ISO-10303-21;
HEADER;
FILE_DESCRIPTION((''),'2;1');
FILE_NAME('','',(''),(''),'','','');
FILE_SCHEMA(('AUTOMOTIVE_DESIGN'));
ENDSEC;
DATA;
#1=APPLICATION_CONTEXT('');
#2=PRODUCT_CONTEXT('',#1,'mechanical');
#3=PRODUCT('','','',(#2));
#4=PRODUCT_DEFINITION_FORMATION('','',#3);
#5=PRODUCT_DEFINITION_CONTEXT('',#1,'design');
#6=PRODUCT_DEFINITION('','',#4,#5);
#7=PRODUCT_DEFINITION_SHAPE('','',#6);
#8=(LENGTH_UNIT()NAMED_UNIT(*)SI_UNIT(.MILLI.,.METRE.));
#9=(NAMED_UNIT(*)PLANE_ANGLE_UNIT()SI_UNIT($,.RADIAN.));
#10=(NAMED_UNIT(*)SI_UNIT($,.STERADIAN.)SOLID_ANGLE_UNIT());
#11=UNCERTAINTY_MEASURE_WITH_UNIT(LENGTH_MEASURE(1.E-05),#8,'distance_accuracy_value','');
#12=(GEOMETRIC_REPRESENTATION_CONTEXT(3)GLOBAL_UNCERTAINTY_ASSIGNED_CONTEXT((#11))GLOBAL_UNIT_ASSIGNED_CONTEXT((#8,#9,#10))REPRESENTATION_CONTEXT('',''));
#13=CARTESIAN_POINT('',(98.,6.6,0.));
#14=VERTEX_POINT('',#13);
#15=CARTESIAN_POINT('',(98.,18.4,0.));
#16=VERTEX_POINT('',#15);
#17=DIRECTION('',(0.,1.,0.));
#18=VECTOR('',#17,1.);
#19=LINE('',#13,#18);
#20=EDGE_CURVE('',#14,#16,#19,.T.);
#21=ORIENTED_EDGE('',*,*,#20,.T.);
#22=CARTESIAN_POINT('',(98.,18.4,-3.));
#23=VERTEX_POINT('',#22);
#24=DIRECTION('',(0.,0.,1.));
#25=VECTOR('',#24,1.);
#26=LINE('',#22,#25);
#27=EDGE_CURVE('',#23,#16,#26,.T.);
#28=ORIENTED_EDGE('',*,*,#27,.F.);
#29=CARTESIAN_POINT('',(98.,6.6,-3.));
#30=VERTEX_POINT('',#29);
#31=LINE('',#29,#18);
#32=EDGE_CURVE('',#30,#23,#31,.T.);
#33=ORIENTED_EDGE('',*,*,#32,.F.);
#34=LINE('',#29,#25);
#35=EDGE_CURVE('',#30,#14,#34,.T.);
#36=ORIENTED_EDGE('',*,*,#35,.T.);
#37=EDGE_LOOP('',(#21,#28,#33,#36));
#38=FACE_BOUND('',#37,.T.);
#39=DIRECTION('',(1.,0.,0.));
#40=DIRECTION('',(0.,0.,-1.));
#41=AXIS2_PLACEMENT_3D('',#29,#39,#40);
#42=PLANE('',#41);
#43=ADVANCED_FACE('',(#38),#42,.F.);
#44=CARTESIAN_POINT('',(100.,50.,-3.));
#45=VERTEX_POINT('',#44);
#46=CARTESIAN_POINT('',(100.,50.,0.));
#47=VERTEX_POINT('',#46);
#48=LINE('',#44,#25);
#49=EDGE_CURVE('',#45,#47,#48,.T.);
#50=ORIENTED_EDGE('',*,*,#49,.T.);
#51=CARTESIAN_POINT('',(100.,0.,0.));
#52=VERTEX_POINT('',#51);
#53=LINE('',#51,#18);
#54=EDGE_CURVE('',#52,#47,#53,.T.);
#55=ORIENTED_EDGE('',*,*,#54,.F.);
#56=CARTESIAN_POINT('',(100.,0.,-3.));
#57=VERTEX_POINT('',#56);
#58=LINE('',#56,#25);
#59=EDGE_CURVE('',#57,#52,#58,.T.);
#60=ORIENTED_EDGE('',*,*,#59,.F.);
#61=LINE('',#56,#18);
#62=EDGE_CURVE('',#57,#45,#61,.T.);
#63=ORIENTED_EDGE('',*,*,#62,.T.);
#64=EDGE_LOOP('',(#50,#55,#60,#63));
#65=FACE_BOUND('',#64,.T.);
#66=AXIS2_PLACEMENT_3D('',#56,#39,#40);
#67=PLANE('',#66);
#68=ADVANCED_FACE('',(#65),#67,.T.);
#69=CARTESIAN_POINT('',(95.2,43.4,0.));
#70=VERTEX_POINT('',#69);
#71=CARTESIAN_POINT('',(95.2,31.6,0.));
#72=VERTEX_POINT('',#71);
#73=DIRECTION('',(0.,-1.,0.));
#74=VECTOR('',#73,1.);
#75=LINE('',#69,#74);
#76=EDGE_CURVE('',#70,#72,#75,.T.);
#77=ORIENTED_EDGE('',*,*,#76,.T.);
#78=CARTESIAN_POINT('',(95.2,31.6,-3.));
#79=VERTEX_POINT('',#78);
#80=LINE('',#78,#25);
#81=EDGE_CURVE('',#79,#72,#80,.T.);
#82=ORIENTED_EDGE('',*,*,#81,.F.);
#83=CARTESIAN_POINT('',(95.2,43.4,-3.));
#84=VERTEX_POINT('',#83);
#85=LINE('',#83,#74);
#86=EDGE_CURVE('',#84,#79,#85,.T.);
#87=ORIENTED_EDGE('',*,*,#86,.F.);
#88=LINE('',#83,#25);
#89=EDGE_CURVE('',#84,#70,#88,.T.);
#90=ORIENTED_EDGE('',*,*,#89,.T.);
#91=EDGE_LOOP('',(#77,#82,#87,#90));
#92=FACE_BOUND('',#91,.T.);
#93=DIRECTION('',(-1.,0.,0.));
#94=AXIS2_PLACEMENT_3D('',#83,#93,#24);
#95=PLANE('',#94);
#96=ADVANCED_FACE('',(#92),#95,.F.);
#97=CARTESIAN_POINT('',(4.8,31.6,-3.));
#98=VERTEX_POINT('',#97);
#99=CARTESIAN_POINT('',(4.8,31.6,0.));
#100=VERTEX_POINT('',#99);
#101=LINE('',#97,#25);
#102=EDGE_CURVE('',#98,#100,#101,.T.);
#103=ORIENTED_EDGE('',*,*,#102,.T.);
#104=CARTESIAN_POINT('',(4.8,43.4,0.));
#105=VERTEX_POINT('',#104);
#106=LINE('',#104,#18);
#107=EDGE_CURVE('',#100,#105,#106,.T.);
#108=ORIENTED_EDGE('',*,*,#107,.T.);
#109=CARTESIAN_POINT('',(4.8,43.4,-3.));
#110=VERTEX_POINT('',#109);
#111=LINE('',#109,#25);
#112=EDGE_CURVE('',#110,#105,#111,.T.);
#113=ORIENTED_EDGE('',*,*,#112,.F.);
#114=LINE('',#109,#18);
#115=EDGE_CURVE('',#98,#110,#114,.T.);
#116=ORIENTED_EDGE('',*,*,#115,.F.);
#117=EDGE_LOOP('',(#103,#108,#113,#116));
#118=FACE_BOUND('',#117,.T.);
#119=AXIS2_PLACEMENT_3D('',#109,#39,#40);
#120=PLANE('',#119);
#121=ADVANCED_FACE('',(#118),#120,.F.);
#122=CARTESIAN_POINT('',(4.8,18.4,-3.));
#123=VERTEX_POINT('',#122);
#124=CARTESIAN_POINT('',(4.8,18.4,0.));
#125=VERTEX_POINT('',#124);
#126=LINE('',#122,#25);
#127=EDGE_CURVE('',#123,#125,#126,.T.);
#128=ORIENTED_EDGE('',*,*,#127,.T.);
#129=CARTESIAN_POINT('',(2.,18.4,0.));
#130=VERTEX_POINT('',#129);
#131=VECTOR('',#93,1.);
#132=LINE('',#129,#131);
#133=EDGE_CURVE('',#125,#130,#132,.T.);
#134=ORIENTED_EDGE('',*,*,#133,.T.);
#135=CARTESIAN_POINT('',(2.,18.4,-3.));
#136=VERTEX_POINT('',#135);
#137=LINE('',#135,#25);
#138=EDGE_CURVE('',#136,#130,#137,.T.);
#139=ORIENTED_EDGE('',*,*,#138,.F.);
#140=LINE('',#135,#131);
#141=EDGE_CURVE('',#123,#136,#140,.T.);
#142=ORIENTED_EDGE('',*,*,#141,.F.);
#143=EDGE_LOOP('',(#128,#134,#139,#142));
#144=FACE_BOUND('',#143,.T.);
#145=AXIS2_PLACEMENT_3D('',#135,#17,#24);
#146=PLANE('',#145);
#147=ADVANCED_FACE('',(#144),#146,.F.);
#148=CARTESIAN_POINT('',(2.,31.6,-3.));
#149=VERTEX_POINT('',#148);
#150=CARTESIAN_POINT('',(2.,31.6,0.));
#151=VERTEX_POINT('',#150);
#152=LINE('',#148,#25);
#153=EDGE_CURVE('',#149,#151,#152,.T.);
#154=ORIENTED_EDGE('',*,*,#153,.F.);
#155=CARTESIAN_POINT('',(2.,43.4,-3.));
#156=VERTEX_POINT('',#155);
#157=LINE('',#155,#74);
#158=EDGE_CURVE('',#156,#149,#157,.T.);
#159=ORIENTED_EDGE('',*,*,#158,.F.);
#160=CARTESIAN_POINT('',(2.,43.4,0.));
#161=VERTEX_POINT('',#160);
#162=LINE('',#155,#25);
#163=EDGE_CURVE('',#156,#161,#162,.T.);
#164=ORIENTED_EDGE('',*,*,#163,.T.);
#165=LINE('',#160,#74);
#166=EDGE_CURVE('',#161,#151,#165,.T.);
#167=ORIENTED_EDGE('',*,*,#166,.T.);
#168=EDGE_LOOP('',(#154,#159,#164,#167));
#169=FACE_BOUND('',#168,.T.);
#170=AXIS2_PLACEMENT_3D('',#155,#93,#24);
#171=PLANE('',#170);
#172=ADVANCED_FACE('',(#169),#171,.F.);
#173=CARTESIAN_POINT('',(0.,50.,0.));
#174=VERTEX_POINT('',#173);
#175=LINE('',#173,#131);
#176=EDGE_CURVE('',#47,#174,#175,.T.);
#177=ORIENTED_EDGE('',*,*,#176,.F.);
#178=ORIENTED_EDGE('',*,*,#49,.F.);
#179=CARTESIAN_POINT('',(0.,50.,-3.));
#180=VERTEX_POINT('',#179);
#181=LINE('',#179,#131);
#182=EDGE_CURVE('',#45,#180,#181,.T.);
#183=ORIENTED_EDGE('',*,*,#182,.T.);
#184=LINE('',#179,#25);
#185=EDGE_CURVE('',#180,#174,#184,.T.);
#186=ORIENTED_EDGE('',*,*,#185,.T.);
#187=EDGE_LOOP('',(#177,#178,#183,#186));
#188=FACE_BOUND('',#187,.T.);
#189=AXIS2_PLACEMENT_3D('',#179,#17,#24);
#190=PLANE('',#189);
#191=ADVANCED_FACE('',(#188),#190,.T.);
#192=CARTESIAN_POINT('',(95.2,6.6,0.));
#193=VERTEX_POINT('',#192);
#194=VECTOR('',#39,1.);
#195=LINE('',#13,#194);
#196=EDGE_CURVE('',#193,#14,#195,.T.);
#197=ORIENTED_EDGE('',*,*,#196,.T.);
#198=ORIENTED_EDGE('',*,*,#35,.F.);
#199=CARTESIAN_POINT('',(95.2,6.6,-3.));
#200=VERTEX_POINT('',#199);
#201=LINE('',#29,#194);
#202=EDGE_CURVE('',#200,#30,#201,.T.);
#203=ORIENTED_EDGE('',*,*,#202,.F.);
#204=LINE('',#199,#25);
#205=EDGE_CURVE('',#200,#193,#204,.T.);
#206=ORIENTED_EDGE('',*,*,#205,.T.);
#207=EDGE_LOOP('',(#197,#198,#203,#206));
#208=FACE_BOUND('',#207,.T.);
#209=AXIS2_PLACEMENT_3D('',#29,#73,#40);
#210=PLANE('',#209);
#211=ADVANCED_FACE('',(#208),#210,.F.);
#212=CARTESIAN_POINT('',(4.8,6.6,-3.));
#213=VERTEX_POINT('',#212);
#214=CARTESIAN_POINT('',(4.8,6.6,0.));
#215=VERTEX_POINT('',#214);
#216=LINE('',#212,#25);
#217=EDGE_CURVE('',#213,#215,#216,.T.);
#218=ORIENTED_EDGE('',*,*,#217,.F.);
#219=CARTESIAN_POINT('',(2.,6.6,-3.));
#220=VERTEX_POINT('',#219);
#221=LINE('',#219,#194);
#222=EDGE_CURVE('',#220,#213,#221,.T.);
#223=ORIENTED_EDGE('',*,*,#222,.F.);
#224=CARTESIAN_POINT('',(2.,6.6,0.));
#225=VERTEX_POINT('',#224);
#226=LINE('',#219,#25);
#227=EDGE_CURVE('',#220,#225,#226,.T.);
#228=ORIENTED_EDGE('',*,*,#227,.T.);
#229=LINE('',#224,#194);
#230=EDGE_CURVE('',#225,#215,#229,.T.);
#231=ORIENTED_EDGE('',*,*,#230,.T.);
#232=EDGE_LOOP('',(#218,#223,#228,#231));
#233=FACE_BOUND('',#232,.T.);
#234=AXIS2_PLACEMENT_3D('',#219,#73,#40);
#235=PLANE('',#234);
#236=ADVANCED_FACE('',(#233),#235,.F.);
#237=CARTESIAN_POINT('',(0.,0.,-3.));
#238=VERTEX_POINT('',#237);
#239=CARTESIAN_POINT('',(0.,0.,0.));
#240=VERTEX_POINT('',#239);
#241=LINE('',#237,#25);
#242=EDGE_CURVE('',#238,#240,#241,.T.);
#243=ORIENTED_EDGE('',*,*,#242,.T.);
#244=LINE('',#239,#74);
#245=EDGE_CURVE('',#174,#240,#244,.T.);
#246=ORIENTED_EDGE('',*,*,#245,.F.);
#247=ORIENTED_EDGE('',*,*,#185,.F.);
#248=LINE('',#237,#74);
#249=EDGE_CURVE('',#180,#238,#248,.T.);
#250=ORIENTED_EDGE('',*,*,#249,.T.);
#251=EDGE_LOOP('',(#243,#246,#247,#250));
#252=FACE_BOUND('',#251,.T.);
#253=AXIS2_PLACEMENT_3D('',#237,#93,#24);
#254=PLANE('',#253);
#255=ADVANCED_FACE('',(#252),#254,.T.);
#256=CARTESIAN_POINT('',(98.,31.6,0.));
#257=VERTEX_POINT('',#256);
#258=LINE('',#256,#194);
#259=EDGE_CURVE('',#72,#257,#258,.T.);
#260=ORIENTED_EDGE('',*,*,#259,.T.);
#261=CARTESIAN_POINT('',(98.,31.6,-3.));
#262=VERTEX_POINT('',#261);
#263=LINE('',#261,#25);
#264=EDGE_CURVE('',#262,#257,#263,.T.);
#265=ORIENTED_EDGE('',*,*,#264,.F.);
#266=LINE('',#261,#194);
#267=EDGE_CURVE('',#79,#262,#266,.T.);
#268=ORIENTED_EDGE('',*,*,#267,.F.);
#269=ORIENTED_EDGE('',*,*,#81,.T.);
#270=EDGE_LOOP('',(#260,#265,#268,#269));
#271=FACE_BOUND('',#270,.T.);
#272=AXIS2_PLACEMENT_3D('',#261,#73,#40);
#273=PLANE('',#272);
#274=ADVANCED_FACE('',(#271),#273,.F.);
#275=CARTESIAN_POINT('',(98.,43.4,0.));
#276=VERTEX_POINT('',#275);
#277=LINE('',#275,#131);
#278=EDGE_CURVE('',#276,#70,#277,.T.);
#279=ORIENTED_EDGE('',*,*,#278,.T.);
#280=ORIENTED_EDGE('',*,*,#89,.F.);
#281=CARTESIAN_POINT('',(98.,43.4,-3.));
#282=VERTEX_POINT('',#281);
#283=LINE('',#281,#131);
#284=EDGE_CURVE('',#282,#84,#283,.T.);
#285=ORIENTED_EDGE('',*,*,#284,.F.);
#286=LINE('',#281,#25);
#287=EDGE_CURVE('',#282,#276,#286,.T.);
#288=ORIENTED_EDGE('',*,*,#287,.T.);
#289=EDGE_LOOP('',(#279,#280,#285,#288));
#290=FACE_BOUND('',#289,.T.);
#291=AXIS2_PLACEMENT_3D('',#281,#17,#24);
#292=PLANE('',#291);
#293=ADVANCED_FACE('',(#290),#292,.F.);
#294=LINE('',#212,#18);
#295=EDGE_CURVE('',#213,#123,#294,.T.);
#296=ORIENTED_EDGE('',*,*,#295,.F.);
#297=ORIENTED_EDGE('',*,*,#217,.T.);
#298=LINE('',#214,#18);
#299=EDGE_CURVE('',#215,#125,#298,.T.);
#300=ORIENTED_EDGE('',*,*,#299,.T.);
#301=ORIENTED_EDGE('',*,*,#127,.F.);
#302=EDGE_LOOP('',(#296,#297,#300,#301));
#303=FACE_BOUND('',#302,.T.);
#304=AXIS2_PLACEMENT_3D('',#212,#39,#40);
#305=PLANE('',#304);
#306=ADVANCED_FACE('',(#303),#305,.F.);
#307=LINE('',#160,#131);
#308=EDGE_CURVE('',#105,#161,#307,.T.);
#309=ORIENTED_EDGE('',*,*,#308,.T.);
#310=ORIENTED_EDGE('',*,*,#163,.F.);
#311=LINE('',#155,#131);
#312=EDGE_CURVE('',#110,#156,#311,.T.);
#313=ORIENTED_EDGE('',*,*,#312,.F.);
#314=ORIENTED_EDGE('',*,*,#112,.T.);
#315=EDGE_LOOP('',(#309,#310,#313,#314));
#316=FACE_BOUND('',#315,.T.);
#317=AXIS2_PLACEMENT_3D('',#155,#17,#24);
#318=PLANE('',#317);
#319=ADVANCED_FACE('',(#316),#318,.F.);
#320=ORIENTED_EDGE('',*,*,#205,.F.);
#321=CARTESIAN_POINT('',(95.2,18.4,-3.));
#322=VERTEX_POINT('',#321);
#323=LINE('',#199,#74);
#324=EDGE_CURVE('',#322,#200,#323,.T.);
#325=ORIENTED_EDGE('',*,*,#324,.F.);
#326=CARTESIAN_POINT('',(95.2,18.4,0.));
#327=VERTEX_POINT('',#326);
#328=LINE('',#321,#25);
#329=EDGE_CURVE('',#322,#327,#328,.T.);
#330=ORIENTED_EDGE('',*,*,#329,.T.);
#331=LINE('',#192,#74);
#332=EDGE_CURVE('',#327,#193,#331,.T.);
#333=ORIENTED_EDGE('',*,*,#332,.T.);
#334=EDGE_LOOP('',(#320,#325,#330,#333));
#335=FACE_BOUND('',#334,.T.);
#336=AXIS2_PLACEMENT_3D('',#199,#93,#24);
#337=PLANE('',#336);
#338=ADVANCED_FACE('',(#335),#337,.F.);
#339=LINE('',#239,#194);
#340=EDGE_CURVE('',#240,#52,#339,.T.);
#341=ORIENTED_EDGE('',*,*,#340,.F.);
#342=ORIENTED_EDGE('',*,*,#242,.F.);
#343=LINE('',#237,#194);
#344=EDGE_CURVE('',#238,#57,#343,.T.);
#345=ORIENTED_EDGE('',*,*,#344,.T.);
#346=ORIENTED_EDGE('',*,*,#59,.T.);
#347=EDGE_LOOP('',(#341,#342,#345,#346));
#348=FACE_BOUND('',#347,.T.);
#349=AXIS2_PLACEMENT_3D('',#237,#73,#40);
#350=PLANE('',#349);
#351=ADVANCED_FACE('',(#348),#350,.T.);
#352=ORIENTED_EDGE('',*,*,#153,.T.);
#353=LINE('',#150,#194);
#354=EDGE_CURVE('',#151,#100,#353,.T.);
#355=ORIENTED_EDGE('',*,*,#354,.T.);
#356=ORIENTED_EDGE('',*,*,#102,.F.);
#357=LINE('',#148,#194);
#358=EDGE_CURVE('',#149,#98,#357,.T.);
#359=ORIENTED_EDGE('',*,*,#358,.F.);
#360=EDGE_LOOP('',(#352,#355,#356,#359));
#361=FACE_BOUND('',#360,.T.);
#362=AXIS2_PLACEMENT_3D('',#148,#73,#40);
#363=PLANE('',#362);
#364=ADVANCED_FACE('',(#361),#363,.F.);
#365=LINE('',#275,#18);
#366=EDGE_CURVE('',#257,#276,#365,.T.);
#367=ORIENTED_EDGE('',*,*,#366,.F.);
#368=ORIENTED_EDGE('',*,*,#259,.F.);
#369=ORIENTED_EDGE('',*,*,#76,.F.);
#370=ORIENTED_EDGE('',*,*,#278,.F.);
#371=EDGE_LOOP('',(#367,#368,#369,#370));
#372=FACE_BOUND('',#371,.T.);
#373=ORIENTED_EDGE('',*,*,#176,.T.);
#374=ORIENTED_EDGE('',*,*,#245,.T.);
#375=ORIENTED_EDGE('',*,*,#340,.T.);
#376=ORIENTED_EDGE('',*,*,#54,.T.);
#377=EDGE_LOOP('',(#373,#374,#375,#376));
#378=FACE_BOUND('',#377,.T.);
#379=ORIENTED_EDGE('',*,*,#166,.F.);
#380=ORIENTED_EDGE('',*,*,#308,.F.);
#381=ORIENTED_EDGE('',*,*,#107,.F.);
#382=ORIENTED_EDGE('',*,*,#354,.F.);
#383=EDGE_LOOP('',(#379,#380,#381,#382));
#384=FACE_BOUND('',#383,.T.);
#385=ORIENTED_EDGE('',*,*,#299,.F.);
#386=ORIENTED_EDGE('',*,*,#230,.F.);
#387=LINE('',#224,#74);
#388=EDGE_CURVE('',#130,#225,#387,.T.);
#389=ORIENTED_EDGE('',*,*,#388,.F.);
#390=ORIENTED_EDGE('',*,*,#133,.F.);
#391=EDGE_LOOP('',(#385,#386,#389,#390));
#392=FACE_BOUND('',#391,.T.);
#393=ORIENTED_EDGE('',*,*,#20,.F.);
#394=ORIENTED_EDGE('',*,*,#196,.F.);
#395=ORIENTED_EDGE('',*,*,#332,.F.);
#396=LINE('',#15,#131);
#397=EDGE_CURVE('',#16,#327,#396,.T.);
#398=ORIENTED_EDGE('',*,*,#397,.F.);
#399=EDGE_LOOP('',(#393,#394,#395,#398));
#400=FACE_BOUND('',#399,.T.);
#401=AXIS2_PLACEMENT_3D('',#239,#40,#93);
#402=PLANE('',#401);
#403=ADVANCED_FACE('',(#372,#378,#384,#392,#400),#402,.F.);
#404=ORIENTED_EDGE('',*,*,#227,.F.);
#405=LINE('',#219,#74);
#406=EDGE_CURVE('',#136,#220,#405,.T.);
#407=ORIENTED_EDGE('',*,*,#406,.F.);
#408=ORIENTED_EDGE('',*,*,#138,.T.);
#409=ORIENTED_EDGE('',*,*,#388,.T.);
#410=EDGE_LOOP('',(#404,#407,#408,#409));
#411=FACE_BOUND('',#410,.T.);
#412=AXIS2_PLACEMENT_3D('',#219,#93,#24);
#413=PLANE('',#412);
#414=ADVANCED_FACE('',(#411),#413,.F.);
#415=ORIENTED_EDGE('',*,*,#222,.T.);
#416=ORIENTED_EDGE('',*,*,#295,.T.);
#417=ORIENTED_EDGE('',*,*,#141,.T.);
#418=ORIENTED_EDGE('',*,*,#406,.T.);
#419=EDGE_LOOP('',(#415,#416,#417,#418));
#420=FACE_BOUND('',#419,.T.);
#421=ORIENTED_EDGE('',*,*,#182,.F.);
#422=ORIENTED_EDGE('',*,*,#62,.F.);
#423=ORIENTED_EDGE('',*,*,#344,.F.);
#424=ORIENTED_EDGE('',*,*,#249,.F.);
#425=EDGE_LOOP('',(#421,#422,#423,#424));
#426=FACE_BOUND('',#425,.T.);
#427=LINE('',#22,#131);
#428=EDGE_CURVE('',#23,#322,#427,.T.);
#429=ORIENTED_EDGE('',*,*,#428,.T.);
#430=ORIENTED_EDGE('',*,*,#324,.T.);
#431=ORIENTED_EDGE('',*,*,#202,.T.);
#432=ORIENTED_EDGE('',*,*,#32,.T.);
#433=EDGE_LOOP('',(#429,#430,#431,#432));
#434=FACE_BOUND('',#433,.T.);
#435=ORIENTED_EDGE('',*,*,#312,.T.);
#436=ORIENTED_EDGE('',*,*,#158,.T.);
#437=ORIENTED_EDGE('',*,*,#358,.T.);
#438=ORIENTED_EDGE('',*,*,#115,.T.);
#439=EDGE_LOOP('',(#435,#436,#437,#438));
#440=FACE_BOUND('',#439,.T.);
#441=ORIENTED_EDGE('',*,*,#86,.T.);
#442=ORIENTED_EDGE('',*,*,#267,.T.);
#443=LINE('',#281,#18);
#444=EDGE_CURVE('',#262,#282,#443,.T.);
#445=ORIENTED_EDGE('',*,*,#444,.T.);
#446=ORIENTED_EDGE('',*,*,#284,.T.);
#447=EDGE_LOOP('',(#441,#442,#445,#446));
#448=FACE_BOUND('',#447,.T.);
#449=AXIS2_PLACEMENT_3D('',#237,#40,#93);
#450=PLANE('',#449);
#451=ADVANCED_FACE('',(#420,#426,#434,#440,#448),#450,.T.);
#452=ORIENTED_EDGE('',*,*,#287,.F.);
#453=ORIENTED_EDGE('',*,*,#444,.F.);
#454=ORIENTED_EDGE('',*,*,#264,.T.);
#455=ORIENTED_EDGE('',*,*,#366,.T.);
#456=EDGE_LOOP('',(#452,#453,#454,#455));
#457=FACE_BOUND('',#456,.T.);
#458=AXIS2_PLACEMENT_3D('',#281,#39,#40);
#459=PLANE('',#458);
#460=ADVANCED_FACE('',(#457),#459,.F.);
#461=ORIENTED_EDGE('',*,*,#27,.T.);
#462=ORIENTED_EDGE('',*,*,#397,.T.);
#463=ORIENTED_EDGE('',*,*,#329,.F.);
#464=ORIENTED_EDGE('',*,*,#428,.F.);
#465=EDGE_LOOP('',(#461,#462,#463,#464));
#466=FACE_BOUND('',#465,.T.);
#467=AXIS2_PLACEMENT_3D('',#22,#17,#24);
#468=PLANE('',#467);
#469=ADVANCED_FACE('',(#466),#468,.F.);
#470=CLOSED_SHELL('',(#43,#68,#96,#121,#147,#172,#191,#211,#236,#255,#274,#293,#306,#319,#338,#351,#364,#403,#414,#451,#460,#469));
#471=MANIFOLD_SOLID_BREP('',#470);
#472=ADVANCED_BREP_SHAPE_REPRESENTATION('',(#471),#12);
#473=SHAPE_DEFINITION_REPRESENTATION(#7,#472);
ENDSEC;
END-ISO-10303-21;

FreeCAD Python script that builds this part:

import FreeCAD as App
import Part
import Sketcher

V = App.Vector


def add_polygon(sketch, points):
    """Adds a closed chain of lines whose ends are joined by coincident constraints."""
    first, n = sketch.GeometryCount, len(points)
    for a, b in zip(points, points[1:] + points[:1]):
        sketch.addGeometry(Part.LineSegment(App.Vector(*a, 0), App.Vector(*b, 0)), False)
    for i in range(n):
        sketch.addConstraint(Sketcher.Constraint("Coincident", first + i, 2, first + (i + 1) % n, 1))

doc = App.newDocument("Part")
params = doc.addObject("Spreadsheet::Sheet", "Params")
for row, (alias, value) in enumerate([
    ("sketch1_width", "100 mm"),
    ("sketch1_height", "50 mm"),
    ("sketch1_width2", "2.8 mm"),
    ("sketch1_height2", "11.8 mm"),
    ("pad1_length", "3 mm"),
], start=1):
    params.set(f"A{row}", alias)
    params.set(f"B{row}", "=" + value)
    params.setAlias(f"B{row}", alias)

body = doc.addObject("PartDesign::Body", "Body")

# Sketch on XY plane
sketch1 = doc.addObject("Sketcher::SketchObject", "Sketch")
body.addObject(sketch1)
sketch1.AttachmentSupport = (doc.XY_Plane, [""])
sketch1.MapMode = "FlatFace"
add_polygon(sketch1, [(0, 50), (0, 0), (100, 0), (100, 50)])  # lines 0-3
add_polygon(sketch1, [(4.8, 6.6), (2, 6.6), (2, 18.4), (4.8, 18.4)])  # lines 4-7
add_polygon(sketch1, [(98, 6.6), (95.2, 6.6), (95.2, 18.4), (98, 18.4)])  # lines 8-11
add_polygon(sketch1, [(4.8, 31.6), (2, 31.6), (2, 43.4), (4.8, 43.4)])  # lines 12-15
add_polygon(sketch1, [(98, 31.6), (95.2, 31.6), (95.2, 43.4), (98, 43.4)])  # lines 16-19
sketch1.addConstraint([
    Sketcher.Constraint("Vertical", 0),
    Sketcher.Constraint("Horizontal", 1),
    Sketcher.Constraint("Vertical", 2),
    Sketcher.Constraint("Horizontal", 3),
    Sketcher.Constraint("Horizontal", 4),
    Sketcher.Constraint("Vertical", 5),
    Sketcher.Constraint("Horizontal", 6),
    Sketcher.Constraint("Vertical", 7),
    Sketcher.Constraint("Horizontal", 8),
    Sketcher.Constraint("Vertical", 9),
    Sketcher.Constraint("Horizontal", 10),
    Sketcher.Constraint("Vertical", 11),
    Sketcher.Constraint("Horizontal", 12),
    Sketcher.Constraint("Vertical", 13),
    Sketcher.Constraint("Horizontal", 14),
    Sketcher.Constraint("Vertical", 15),
    Sketcher.Constraint("Horizontal", 16),
    Sketcher.Constraint("Vertical", 17),
    Sketcher.Constraint("Horizontal", 18),
    Sketcher.Constraint("Vertical", 19),
    Sketcher.Constraint("Coincident", 0, 2, -1, 1),
    Sketcher.Constraint("Horizontal", 7, 2, 8, 2),
    Sketcher.Constraint("Horizontal", 6, 2, 9, 2),
    Sketcher.Constraint("Horizontal", 15, 2, 16, 2),
    Sketcher.Constraint("Horizontal", 14, 2, 17, 2),
    Sketcher.Constraint("Vertical", 5, 2, 12, 2),
    Sketcher.Constraint("Vertical", 7, 2, 14, 2),
    Sketcher.Constraint("Vertical", 9, 2, 16, 2),
    Sketcher.Constraint("Vertical", 11, 2, 18, 2),
    Sketcher.Constraint("Equal", 6, 8),
    Sketcher.Constraint("Equal", 11, 13),
    Sketcher.Constraint("DistanceX", 1, 1, 1, 2, 100.0),
    Sketcher.Constraint("DistanceY", 0, 2, 0, 1, 50.0),
    Sketcher.Constraint("DistanceX", 4, 2, 4, 1, 2.8),
    Sketcher.Constraint("DistanceY", 5, 1, 5, 2, 11.8),
    Sketcher.Constraint("DistanceX", -1, 1, 4, 2, 2.0),
    Sketcher.Constraint("DistanceX", -1, 1, 10, 2, 98.0),
    Sketcher.Constraint("DistanceY", 4, 2, 12, 2, 25.0),
    Sketcher.Constraint("DistanceY", -1, 1, 4, 2, 6.6),
])
sketch1.setExpression("Constraints[51]", "Params.sketch1_width")
sketch1.setExpression("Constraints[52]", "Params.sketch1_height")
sketch1.setExpression("Constraints[53]", "Params.sketch1_width2")
sketch1.setExpression("Constraints[54]", "Params.sketch1_height2")
pad1 = doc.addObject("PartDesign::Pad", "Pad")
body.addObject(pad1)
pad1.Profile = sketch1
pad1.setExpression("Length", "Params.pad1_length")
pad1.Reversed = True

doc.recompute()
